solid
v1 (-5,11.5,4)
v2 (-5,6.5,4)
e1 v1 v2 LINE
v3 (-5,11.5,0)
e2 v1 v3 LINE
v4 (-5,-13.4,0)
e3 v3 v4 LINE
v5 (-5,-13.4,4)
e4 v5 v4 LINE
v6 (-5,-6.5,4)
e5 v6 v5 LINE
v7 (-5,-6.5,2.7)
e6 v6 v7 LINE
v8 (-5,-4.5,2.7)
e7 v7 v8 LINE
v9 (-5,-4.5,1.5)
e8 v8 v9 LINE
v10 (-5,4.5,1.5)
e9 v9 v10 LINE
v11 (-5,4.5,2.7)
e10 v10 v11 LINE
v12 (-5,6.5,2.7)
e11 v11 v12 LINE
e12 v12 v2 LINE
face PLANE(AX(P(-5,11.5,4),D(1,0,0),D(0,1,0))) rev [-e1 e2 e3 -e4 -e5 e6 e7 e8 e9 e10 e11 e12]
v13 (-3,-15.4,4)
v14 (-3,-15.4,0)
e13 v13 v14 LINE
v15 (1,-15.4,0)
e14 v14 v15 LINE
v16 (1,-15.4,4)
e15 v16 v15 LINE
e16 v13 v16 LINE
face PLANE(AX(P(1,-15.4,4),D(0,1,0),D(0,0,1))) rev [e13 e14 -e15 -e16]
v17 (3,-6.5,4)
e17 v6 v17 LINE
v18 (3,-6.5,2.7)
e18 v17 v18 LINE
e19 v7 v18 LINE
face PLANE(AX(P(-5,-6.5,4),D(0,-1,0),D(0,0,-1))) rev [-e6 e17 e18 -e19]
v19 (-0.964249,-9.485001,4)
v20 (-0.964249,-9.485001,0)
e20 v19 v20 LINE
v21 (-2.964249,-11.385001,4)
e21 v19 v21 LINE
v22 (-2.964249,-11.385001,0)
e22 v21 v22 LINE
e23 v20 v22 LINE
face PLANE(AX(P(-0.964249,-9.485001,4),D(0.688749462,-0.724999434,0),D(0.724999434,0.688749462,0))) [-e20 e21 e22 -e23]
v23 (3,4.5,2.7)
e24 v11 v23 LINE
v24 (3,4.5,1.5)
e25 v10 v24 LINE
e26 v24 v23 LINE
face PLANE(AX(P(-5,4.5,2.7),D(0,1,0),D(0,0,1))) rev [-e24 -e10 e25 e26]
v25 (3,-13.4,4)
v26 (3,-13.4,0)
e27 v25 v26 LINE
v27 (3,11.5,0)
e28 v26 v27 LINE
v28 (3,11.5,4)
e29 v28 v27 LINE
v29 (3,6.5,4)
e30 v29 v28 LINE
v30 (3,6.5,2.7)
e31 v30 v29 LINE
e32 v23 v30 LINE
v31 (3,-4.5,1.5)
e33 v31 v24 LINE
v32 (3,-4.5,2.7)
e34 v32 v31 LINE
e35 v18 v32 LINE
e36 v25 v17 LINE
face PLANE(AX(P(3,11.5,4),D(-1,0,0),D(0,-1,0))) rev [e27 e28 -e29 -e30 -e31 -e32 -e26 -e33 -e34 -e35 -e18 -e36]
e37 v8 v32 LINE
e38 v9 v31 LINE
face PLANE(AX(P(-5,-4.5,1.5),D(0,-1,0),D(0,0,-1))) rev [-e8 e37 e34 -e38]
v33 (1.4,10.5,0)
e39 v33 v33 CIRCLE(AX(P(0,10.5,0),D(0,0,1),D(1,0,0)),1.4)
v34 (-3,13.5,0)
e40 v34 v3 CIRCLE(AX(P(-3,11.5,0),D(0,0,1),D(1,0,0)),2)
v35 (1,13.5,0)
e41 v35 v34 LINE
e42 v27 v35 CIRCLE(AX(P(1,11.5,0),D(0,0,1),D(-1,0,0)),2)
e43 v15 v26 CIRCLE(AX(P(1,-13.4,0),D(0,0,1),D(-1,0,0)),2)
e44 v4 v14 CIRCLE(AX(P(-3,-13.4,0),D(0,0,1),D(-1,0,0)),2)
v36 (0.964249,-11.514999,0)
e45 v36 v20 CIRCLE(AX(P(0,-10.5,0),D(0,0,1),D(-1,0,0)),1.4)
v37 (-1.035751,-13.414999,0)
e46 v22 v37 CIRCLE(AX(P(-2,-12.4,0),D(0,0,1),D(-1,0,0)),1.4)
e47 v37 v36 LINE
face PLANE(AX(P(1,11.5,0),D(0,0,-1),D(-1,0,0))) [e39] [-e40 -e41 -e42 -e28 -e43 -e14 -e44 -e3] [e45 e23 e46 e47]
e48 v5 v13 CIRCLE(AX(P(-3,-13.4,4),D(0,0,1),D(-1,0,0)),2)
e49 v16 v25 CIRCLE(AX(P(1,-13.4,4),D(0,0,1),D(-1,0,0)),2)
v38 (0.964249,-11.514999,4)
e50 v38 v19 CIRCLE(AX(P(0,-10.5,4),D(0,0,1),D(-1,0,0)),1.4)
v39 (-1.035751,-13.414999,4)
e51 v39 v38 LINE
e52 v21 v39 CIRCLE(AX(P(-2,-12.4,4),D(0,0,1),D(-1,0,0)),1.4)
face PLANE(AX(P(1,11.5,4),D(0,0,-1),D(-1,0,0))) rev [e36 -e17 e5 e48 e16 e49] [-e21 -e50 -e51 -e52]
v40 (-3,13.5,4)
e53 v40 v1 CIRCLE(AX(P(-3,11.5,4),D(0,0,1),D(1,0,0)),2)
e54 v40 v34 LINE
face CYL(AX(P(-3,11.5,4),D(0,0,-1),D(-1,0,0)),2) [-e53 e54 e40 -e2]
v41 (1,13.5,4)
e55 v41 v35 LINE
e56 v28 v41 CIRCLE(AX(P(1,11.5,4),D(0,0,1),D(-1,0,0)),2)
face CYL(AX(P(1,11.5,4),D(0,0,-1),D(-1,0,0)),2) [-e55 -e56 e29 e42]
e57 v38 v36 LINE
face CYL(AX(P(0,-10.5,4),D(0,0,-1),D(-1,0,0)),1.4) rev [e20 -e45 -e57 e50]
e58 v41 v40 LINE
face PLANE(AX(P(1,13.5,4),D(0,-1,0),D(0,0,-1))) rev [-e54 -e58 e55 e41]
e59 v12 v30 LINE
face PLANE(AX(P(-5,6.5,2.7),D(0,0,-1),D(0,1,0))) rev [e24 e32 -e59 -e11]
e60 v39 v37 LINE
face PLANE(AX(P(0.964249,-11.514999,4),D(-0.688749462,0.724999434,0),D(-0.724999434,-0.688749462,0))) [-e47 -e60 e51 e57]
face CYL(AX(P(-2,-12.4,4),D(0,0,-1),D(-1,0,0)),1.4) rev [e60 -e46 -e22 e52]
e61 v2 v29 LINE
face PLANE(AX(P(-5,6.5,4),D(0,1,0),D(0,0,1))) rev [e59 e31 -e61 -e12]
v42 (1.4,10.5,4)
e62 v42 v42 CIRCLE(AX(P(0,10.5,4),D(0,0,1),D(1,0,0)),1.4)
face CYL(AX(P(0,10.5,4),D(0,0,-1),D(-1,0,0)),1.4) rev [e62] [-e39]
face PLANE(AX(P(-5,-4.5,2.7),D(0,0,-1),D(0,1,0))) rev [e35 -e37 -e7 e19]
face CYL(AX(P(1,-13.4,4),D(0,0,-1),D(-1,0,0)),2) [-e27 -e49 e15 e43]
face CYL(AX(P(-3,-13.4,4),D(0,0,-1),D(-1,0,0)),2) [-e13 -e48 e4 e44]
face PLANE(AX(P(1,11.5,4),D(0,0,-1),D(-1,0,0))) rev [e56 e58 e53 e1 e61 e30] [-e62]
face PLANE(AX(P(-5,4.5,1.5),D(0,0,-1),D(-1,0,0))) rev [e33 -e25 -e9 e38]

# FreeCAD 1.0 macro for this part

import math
import FreeCAD as App
import Part
import Sketcher

V = App.Vector
Q = App.Units.Quantity

doc = App.newDocument("Part")
body = doc.addObject("PartDesign::Body", "Body")

# Sketch on XY plane
sketch1 = body.newObject("Sketcher::SketchObject", "Sketch")
sketch1.AttachmentSupport = (doc.getObject("XY_Plane"), [""])
sketch1.MapMode = "FlatFace"
sketch1.addGeometry([
    Part.LineSegment(V(-5, 11.5, 0), V(-5, -13.4, 0)),  # 0
    Part.ArcOfCircle(Part.Circle(V(-3, -13.4, 0), V(0, 0, 1), 2), math.radians(-180), math.radians(-90)),  # 1
    Part.LineSegment(V(-3, -15.4, 0), V(1, -15.4, 0)),  # 2
    Part.ArcOfCircle(Part.Circle(V(1, -13.4, 0), V(0, 0, 1), 2), math.radians(-90), math.radians(0)),  # 3
    Part.LineSegment(V(3, -13.4, 0), V(3, 11.5, 0)),  # 4
    Part.ArcOfCircle(Part.Circle(V(1, 11.5, 0), V(0, 0, 1), 2), math.radians(0), math.radians(90)),  # 5
    Part.LineSegment(V(1, 13.5, 0), V(-3, 13.5, 0)),  # 6
    Part.ArcOfCircle(Part.Circle(V(-3, 11.5, 0), V(0, 0, 1), 2), math.radians(90), math.radians(180)),  # 7
    Part.ArcOfCircle(Part.Circle(V(0, -10.5, 0), V(0, 0, 1), 1.4), math.radians(-46), math.radians(134)),  # 8
    Part.LineSegment(V(1, -11.5, 0), V(-1, -13.4, 0)),  # 9
    Part.ArcOfCircle(Part.Circle(V(-2, -12.4, 0), V(0, 0, 1), 1.4), math.radians(134), math.radians(314)),  # 10
    Part.LineSegment(V(-3, -11.4, 0), V(-1, -9.5, 0)),  # 11
    Part.Circle(V(0, 10.5, 0), V(0, 0, 1), 1.4),  # 12
], False)
sketch1.addConstraint([
    Sketcher.Constraint("Tangent", 0, 2, 1, 1),
    Sketcher.Constraint("Tangent", 1, 2, 2, 1),
    Sketcher.Constraint("Tangent", 2, 2, 3, 1),
    Sketcher.Constraint("Tangent", 3, 2, 4, 1),
    Sketcher.Constraint("Tangent", 4, 2, 5, 1),
    Sketcher.Constraint("Tangent", 5, 2, 6, 1),
    Sketcher.Constraint("Tangent", 6, 2, 7, 1),
    Sketcher.Constraint("Tangent", 7, 2, 0, 1),
    Sketcher.Constraint("Tangent", 8, 1, 9, 1),
    Sketcher.Constraint("Tangent", 9, 2, 10, 2),
    Sketcher.Constraint("Tangent", 10, 1, 11, 1),
    Sketcher.Constraint("Tangent", 11, 2, 8, 2),
    Sketcher.Constraint("Vertical", 0),
    Sketcher.Constraint("Horizontal", 2),
    Sketcher.Constraint("Vertical", 4),
    Sketcher.Constraint("Horizontal", 6),
    Sketcher.Constraint("Equal", 1, 3),
    Sketcher.Constraint("Equal", 3, 5),
    Sketcher.Constraint("Equal", 5, 7),
    Sketcher.Constraint("Equal", 8, 10),
    Sketcher.Constraint("Equal", 10, 12),
    Sketcher.Constraint("Symmetric", 8, 3, 12, 3, -1, 1),
    Sketcher.Constraint("PointOnObject", 8, 3, -2),
    Sketcher.Constraint("Radius", 1, Q("2 mm")),
    Sketcher.Constraint("Diameter", 12, Q("2.8 mm")),
    Sketcher.Constraint("DistanceX", 2, 1, 2, 2, Q("4 mm")),
    Sketcher.Constraint("DistanceY", 0, 2, 0, 1, Q("24.9 mm")),
    Sketcher.Constraint("DistanceX", 1, 3, -1, 1, Q("3 mm")),
    Sketcher.Constraint("DistanceX", 10, 3, -1, 1, Q("2 mm")),
    Sketcher.Constraint("DistanceY", 8, 3, 5, 3, Q("22 mm")),
    Sketcher.Constraint("DistanceY", 1, 3, 10, 3, Q("1 mm")),
    Sketcher.Constraint("DistanceY", 12, 3, 5, 3, Q("1 mm")),
])
pad1 = body.newObject("PartDesign::Pad", "Pad")
pad1.Profile = sketch1
pad1.Length = 4

# Sketch on YZ plane
sketch2 = body.newObject("Sketcher::SketchObject", "Sketch001")
sketch2.AttachmentSupport = (doc.getObject("YZ_Plane"), [""])
sketch2.MapMode = "FlatFace"
sketch2.AttachmentOffset = App.Placement(V(0, 0, 3), App.Rotation())
sketch2.addGeometry([
    Part.LineSegment(V(6.5, 2.7, 0), V(6.5, 4, 0)),  # 0
    Part.LineSegment(V(6.5, 4, 0), V(-6.5, 4, 0)),  # 1
    Part.LineSegment(V(-6.5, 4, 0), V(-6.5, 2.7, 0)),  # 2
    Part.LineSegment(V(-6.5, 2.7, 0), V(-4.5, 2.7, 0)),  # 3
    Part.LineSegment(V(-4.5, 2.7, 0), V(-4.5, 1.5, 0)),  # 4
    Part.LineSegment(V(-4.5, 1.5, 0), V(4.5, 1.5, 0)),  # 5
    Part.LineSegment(V(4.5, 1.5, 0), V(4.5, 2.7, 0)),  # 6
    Part.LineSegment(V(4.5, 2.7, 0), V(6.5, 2.7, 0)),  # 7
], False)
sketch2.addConstraint([
    Sketcher.Constraint("Coincident", 0, 2, 1, 1),
    Sketcher.Constraint("Coincident", 1, 2, 2, 1),
    Sketcher.Constraint("Coincident", 2, 2, 3, 1),
    Sketcher.Constraint("Coincident", 3, 2, 4, 1),
    Sketcher.Constraint("Coincident", 4, 2, 5, 1),
    Sketcher.Constraint("Coincident", 5, 2, 6, 1),
    Sketcher.Constraint("Coincident", 6, 2, 7, 1),
    Sketcher.Constraint("Coincident", 7, 2, 0, 1),
    Sketcher.Constraint("Vertical", 0),
    Sketcher.Constraint("Horizontal", 1),
    Sketcher.Constraint("Vertical", 2),
    Sketcher.Constraint("Horizontal", 3),
    Sketcher.Constraint("Vertical", 4),
    Sketcher.Constraint("Horizontal", 5),
    Sketcher.Constraint("Vertical", 6),
    Sketcher.Constraint("Horizontal", 7),
    Sketcher.Constraint("Symmetric", 3, 2, 6, 2, -2),
    Sketcher.Constraint("Equal", 3, 7),
    Sketcher.Constraint("DistanceX", 1, 2, 1, 1, Q("13 mm")),
    Sketcher.Constraint("DistanceX", 3, 1, 3, 2, Q("2 mm")),
    Sketcher.Constraint("DistanceY", 0, 1, 0, 2, Q("1.3 mm")),
    Sketcher.Constraint("DistanceY", 4, 2, 4, 1, Q("1.2 mm")),
    Sketcher.Constraint("DistanceY", -1, 1, 0, 2, Q("4 mm")),
])
pocket1 = body.newObject("PartDesign::Pocket", "Pocket")
pocket1.Profile = sketch2
pocket1.Type = "ThroughAll"

doc.recompute()
